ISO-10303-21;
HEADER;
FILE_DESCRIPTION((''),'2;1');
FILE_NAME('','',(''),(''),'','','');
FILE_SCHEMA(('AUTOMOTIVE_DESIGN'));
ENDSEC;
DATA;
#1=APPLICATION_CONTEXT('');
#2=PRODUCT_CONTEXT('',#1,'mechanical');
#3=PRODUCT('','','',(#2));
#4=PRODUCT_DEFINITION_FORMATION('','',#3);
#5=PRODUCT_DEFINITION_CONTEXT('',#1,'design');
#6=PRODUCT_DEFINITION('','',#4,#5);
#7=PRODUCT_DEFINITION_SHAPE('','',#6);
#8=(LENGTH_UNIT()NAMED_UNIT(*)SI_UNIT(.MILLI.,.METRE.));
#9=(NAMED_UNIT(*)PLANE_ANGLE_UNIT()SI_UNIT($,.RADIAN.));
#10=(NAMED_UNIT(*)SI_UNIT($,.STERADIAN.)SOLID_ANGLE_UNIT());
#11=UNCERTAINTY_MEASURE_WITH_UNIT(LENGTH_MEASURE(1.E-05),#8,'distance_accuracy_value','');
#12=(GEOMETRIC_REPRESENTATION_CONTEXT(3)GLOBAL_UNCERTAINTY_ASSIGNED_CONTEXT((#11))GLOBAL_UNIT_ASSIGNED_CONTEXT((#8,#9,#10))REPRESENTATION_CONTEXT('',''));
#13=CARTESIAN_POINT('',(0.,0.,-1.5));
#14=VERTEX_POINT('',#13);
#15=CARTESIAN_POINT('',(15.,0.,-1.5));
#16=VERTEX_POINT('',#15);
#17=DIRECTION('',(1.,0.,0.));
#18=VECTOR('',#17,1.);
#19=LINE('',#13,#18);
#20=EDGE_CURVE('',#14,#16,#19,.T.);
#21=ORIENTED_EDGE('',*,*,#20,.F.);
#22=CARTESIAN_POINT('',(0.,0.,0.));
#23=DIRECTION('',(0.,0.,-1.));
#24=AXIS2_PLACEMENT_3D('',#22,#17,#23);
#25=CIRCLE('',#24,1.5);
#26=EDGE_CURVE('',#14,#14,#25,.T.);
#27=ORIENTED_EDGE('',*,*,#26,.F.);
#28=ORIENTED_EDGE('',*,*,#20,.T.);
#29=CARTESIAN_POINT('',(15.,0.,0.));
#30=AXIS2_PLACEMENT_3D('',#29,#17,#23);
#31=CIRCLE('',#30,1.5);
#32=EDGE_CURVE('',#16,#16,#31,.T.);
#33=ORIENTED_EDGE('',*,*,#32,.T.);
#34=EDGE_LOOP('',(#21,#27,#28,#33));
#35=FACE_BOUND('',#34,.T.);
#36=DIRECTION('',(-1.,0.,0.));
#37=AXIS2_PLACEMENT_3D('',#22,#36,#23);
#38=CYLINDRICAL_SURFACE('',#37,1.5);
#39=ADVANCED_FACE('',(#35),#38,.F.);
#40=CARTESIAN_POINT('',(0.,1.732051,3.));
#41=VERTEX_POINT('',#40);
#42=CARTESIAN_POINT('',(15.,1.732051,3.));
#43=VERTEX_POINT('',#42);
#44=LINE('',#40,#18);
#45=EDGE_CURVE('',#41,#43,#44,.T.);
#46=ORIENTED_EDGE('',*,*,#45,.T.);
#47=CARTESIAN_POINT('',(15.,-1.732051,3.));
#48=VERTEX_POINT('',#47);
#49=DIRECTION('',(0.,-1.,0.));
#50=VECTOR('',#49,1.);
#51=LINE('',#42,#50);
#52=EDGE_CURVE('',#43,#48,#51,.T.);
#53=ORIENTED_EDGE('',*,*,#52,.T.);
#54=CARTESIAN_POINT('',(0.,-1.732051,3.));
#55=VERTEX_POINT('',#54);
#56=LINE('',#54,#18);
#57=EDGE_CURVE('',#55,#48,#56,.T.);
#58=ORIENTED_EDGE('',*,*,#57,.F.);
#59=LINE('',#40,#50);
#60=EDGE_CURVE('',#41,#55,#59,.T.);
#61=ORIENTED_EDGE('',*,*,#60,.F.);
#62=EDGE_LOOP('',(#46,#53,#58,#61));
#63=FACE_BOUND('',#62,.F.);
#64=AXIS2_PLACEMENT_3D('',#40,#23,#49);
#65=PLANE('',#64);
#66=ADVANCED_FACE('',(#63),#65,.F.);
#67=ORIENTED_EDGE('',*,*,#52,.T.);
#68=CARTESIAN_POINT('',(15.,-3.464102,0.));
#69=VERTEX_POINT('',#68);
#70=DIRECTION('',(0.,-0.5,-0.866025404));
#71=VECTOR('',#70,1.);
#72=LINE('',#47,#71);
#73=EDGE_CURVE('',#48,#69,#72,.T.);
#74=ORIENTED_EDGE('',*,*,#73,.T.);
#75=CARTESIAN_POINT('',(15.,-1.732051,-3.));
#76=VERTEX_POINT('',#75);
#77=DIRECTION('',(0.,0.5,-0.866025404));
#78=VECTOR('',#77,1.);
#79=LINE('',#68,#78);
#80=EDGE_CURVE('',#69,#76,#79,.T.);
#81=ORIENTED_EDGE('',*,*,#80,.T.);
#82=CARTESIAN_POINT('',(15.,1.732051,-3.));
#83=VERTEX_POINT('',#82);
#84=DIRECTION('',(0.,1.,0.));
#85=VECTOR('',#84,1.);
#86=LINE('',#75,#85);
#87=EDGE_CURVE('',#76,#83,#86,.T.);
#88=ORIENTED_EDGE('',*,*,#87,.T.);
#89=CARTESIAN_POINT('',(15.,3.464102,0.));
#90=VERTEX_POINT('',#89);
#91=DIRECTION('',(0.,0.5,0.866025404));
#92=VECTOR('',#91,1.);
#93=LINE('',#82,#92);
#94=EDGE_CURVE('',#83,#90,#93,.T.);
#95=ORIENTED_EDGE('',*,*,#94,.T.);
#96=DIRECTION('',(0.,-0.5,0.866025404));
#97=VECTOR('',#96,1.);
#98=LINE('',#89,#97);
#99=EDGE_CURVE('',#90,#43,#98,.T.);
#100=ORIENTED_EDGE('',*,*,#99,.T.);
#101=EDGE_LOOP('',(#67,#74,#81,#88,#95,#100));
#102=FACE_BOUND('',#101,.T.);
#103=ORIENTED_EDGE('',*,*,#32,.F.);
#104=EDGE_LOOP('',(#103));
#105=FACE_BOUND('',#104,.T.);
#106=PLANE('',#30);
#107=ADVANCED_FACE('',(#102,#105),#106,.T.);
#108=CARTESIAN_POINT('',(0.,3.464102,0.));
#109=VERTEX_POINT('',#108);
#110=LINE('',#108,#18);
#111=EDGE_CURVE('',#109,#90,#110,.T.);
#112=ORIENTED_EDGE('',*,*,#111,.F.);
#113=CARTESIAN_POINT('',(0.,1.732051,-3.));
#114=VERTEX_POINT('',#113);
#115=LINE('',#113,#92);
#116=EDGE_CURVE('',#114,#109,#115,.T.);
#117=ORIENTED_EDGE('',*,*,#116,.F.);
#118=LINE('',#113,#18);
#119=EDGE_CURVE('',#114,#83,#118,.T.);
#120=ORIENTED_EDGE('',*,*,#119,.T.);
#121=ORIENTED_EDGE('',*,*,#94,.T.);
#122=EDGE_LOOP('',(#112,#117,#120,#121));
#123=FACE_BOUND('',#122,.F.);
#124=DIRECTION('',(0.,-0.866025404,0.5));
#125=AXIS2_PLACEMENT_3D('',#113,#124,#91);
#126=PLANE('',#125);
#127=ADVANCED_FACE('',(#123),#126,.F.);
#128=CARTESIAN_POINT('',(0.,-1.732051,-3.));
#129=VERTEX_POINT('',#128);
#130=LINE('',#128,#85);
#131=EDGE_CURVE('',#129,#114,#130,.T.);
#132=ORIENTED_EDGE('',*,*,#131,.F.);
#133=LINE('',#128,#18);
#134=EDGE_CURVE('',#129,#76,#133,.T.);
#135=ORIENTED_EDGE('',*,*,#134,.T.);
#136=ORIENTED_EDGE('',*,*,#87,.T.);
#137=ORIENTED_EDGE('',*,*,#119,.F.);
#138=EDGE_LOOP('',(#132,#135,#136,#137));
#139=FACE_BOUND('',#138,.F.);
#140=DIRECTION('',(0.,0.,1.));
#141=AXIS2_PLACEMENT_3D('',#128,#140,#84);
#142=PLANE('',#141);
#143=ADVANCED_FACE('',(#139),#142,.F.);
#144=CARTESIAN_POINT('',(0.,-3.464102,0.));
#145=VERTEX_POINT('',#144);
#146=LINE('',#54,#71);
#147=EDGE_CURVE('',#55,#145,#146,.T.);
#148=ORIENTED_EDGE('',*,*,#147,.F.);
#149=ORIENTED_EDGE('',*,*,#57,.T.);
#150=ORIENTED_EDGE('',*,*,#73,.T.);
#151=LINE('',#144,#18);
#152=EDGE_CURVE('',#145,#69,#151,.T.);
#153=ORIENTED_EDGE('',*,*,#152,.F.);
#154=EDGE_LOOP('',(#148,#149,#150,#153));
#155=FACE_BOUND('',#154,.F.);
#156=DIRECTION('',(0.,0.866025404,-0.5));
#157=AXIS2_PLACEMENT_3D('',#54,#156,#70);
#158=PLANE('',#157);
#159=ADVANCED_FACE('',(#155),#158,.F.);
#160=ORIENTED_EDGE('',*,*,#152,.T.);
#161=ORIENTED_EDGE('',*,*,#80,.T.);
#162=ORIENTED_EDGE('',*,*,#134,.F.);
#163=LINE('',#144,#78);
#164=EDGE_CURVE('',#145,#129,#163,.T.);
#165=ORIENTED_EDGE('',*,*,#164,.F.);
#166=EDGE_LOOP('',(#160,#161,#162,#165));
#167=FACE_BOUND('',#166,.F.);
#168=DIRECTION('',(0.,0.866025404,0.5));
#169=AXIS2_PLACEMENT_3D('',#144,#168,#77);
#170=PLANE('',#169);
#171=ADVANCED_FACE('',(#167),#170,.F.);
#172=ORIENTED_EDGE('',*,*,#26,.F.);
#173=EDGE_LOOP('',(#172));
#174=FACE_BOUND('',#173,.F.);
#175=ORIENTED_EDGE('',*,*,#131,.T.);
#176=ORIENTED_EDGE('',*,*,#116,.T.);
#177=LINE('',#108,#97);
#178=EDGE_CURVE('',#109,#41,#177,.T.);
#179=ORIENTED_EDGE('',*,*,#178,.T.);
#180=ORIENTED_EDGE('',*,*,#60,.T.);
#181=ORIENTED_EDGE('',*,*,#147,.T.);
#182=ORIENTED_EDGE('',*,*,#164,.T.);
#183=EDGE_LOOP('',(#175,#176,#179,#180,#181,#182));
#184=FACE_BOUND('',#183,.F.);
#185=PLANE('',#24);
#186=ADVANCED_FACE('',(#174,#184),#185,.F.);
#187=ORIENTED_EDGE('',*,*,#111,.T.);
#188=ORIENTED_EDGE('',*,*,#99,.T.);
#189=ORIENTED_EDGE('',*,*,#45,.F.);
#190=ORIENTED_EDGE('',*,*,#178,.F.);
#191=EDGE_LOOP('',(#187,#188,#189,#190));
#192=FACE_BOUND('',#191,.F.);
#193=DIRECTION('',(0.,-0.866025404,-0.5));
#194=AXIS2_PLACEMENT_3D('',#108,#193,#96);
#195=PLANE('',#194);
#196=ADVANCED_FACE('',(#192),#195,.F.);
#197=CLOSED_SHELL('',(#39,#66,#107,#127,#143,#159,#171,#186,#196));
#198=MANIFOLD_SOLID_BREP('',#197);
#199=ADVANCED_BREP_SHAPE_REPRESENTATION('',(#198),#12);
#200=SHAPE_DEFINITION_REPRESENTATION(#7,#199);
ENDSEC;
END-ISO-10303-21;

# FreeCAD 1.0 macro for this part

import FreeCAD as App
import Part
import Sketcher

V = App.Vector
Q = App.Units.Quantity

doc = App.newDocument("Part")
params = doc.addObject("Spreadsheet::Sheet", "Params")
for row, (alias, value) in enumerate([
    ("sketch1_diameter", "3 mm"),
    ("pad1_length", "15 mm"),
], start=1):
    params.set(f"A{row}", alias)
    params.set(f"B{row}", "=" + value)
    params.setAlias(f"B{row}", alias)

body = doc.addObject("PartDesign::Body", "Body")

sketch1 = body.newObject("Sketcher::SketchObject", "Sketch")
sketch1.AttachmentSupport = (doc.getObject("YZ_Plane"), [""])
sketch1.MapMode = "FlatFace"
sketch1.addGeometry(Part.LineSegment(V(1.7, 3, 0), V(-1.7, 3, 0)), False)
sketch1.addGeometry(Part.LineSegment(V(-1.7, 3, 0), V(-3.5, 0, 0)), False)
sketch1.addGeometry(Part.LineSegment(V(-3.5, 0, 0), V(-1.7, -3, 0)), False)
sketch1.addGeometry(Part.LineSegment(V(-1.7, -3, 0), V(1.7, -3, 0)), False)
sketch1.addGeometry(Part.LineSegment(V(1.7, -3, 0), V(3.5, 0, 0)), False)
sketch1.addGeometry(Part.LineSegment(V(3.5, 0, 0), V(1.7, 3, 0)), False)
sketch1.addGeometry(Part.Circle(V(0, 0, 0), V(0, 0, 1), 1.5), False)
sketch1.addConstraint(Sketcher.Constraint("Coincident", 0, 2, 1, 1))
sketch1.addConstraint(Sketcher.Constraint("Coincident", 1, 2, 2, 1))
sketch1.addConstraint(Sketcher.Constraint("Coincident", 2, 2, 3, 1))
sketch1.addConstraint(Sketcher.Constraint("Coincident", 3, 2, 4, 1))
sketch1.addConstraint(Sketcher.Constraint("Coincident", 4, 2, 5, 1))
sketch1.addConstraint(Sketcher.Constraint("Coincident", 5, 2, 0, 1))
sketch1.addConstraint(Sketcher.Constraint("Horizontal", 0))
sketch1.addConstraint(Sketcher.Constraint("Horizontal", 3))
sketch1.addConstraint(Sketcher.Constraint("Coincident", 6, 3, -1, 1))
sketch1.addConstraint(Sketcher.Constraint("Symmetric", 0, 2, 3, 2, -1, 1))
sketch1.addConstraint(Sketcher.Constraint("Symmetric", 1, 2, 4, 2, -1, 1))
sketch1.addConstraint(Sketcher.Constraint("PointOnObject", 1, 2, -1))
sketch1.addConstraint(Sketcher.Constraint("Parallel", 2, 5))
sketch1.addConstraint(Sketcher.Constraint("Vertical", 0, 2, 2, 2))
sketch1.addConstraint(Sketcher.Constraint("Diameter", 6, 3.0))
sketch1.addConstraint(Sketcher.Constraint("Angle", 1, Q("-120 deg")))
sketch1.addConstraint(Sketcher.Constraint("DistanceY", -1, 1, 0, 2, 3.0))
sketch1.addConstraint(Sketcher.Constraint("DistanceX", 0, 2, 0, 1, 3.464102))
sketch1.setExpression("Constraints[14]", "Params.sketch1_diameter")
pad1 = body.newObject("PartDesign::Pad", "Pad")
pad1.Profile = sketch1
pad1.setExpression("Length", "Params.pad1_length")

doc.recompute()
